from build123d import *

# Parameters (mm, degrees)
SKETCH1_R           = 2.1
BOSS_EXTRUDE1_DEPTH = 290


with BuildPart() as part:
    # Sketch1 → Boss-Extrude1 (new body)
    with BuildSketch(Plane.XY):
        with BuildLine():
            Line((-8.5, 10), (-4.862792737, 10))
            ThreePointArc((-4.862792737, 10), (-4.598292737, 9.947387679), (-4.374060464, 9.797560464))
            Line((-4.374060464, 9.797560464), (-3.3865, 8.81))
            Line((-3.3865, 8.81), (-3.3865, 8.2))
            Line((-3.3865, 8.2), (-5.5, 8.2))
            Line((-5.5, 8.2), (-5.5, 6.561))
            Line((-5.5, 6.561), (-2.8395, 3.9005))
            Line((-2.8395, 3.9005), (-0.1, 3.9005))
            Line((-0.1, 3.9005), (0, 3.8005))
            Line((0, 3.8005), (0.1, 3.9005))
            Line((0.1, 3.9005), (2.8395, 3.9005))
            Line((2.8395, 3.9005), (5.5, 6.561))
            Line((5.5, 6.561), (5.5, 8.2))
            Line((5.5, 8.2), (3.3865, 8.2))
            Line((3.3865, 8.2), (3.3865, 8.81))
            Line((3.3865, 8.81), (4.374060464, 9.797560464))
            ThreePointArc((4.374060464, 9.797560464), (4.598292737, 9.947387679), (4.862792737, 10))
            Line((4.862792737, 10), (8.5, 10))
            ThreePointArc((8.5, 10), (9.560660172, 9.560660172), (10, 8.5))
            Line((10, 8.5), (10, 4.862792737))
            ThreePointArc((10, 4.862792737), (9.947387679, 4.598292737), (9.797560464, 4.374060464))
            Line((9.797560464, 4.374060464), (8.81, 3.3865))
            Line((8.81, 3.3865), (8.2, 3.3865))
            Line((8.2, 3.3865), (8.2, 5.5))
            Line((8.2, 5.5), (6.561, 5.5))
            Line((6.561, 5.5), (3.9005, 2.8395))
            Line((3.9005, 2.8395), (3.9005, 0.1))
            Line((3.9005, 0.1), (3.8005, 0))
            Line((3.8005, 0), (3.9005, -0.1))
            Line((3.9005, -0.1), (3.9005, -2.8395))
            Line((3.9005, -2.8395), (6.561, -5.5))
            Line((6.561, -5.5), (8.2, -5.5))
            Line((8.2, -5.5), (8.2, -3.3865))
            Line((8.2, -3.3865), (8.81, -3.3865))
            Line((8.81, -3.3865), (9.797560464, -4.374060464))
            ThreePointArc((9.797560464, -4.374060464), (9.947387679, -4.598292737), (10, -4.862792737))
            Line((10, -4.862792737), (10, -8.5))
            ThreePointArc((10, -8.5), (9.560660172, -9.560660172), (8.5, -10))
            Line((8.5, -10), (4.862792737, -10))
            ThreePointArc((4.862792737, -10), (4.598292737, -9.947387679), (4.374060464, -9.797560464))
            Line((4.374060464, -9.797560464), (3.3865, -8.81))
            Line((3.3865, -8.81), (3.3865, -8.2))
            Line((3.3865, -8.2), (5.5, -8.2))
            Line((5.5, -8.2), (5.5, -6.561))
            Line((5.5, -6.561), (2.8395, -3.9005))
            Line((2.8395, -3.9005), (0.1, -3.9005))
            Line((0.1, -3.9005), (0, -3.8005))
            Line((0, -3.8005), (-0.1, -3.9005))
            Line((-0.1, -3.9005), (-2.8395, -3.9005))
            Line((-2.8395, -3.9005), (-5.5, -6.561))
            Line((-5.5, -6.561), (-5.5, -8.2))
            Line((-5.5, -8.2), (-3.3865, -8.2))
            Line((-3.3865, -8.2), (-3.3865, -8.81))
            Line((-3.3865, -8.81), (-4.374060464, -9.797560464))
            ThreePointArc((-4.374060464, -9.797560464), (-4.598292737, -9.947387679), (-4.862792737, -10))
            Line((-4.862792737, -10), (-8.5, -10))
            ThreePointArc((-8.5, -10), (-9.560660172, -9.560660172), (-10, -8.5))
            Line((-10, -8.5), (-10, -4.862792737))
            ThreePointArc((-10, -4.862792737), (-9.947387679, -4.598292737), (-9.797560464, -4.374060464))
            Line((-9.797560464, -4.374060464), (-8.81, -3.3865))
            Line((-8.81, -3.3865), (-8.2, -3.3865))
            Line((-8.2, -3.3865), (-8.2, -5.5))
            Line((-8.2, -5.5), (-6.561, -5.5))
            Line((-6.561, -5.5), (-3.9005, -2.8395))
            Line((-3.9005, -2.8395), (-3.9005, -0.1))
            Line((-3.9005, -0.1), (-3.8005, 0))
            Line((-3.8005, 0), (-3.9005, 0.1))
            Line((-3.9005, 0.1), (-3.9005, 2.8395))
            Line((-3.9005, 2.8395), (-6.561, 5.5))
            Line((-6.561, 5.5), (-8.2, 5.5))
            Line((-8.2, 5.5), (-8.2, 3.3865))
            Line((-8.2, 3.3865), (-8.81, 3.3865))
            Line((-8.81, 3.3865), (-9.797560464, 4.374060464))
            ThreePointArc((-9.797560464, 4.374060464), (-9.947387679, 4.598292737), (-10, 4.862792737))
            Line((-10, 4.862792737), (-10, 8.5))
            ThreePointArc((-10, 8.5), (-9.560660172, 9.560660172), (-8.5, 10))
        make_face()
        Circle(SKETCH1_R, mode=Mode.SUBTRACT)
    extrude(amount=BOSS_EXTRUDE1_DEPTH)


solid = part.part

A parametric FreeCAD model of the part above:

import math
import FreeCAD as App
import Part
import Sketcher
from FreeCAD import Vector

doc = App.newDocument("Part")
body = doc.addObject("PartDesign::Body", "Body")

# Sketch on XY plane
sketch1 = doc.addObject("Sketcher::SketchObject", "Sketch")
body.addObject(sketch1)
sketch1.AttachmentSupport = (doc.XY_Plane, [""])
sketch1.MapMode = "FlatFace"
sketch1.addGeometry([
    Part.LineSegment(Vector(-4.86, 10, 0), Vector(-8.5, 10, 0)),  # 0
    Part.ArcOfCircle(Part.Circle(Vector(-8.5, 8.5, 0), Vector(0, 0, 1), 1.5), math.radians(90), math.radians(180)),  # 1
    Part.LineSegment(Vector(-10, 8.5, 0), Vector(-10, 4.86, 0)),  # 2
    Part.ArcOfCircle(Part.Circle(Vector(-9.31, 4.86, 0), Vector(0, 0, 1), 0.69), math.radians(180), math.radians(225)),  # 3
    Part.LineSegment(Vector(-9.8, 4.37, 0), Vector(-8.81, 3.39, 0)),  # 4
    Part.LineSegment(Vector(-8.81, 3.39, 0), Vector(-8.2, 3.39, 0)),  # 5
    Part.LineSegment(Vector(-8.2, 3.39, 0), Vector(-8.2, 5.5, 0)),  # 6
    Part.LineSegment(Vector(-8.2, 5.5, 0), Vector(-6.56, 5.5, 0)),  # 7
    Part.LineSegment(Vector(-6.56, 5.5, 0), Vector(-3.9, 2.84, 0)),  # 8
    Part.LineSegment(Vector(-3.9, 2.84, 0), Vector(-3.9, 0.1, 0)),  # 9
    Part.LineSegment(Vector(-3.9, 0.1, 0), Vector(-3.8, 0, 0)),  # 10
    Part.LineSegment(Vector(-3.8, 0, 0), Vector(-3.9, -0.1, 0)),  # 11
    Part.LineSegment(Vector(-3.9, -0.1, 0), Vector(-3.9, -2.84, 0)),  # 12
    Part.LineSegment(Vector(-3.9, -2.84, 0), Vector(-6.56, -5.5, 0)),  # 13
    Part.LineSegment(Vector(-6.56, -5.5, 0), Vector(-8.2, -5.5, 0)),  # 14
    Part.LineSegment(Vector(-8.2, -5.5, 0), Vector(-8.2, -3.39, 0)),  # 15
    Part.LineSegment(Vector(-8.2, -3.39, 0), Vector(-8.81, -3.39, 0)),  # 16
    Part.LineSegment(Vector(-8.81, -3.39, 0), Vector(-9.8, -4.37, 0)),  # 17
    Part.ArcOfCircle(Part.Circle(Vector(-9.31, -4.86, 0), Vector(0, 0, 1), 0.69), math.radians(135), math.radians(180)),  # 18
    Part.LineSegment(Vector(-10, -4.86, 0), Vector(-10, -8.5, 0)),  # 19
    Part.ArcOfCircle(Part.Circle(Vector(-8.5, -8.5, 0), Vector(0, 0, 1), 1.5), math.radians(180), math.radians(270)),  # 20
    Part.LineSegment(Vector(-8.5, -10, 0), Vector(-4.86, -10, 0)),  # 21
    Part.ArcOfCircle(Part.Circle(Vector(-4.86, -9.31, 0), Vector(0, 0, 1), 0.69), math.radians(-90), math.radians(-45)),  # 22
    Part.LineSegment(Vector(-4.37, -9.8, 0), Vector(-3.39, -8.81, 0)),  # 23
    Part.LineSegment(Vector(-3.39, -8.81, 0), Vector(-3.39, -8.2, 0)),  # 24
    Part.LineSegment(Vector(-3.39, -8.2, 0), Vector(-5.5, -8.2, 0)),  # 25
    Part.LineSegment(Vector(-5.5, -8.2, 0), Vector(-5.5, -6.56, 0)),  # 26
    Part.LineSegment(Vector(-5.5, -6.56, 0), Vector(-2.84, -3.9, 0)),  # 27
    Part.LineSegment(Vector(-2.84, -3.9, 0), Vector(-0.1, -3.9, 0)),  # 28
    Part.LineSegment(Vector(-0.1, -3.9, 0), Vector(0, -3.8, 0)),  # 29
    Part.LineSegment(Vector(0, -3.8, 0), Vector(0.1, -3.9, 0)),  # 30
    Part.LineSegment(Vector(0.1, -3.9, 0), Vector(2.84, -3.9, 0)),  # 31
    Part.LineSegment(Vector(2.84, -3.9, 0), Vector(5.5, -6.56, 0)),  # 32
    Part.LineSegment(Vector(5.5, -6.56, 0), Vector(5.5, -8.2, 0)),  # 33
    Part.LineSegment(Vector(5.5, -8.2, 0), Vector(3.39, -8.2, 0)),  # 34
    Part.LineSegment(Vector(3.39, -8.2, 0), Vector(3.39, -8.81, 0)),  # 35
    Part.LineSegment(Vector(3.39, -8.81, 0), Vector(4.37, -9.8, 0)),  # 36
    Part.ArcOfCircle(Part.Circle(Vector(4.86, -9.31, 0), Vector(0, 0, 1), 0.69), math.radians(-135), math.radians(-90)),  # 37
    Part.LineSegment(Vector(4.86, -10, 0), Vector(8.5, -10, 0)),  # 38
    Part.ArcOfCircle(Part.Circle(Vector(8.5, -8.5, 0), Vector(0, 0, 1), 1.5), math.radians(-90), math.radians(0)),  # 39
    Part.LineSegment(Vector(10, -8.5, 0), Vector(10, -4.86, 0)),  # 40
    Part.ArcOfCircle(Part.Circle(Vector(9.31, -4.86, 0), Vector(0, 0, 1), 0.69), math.radians(0), math.radians(45)),  # 41
    Part.LineSegment(Vector(9.8, -4.37, 0), Vector(8.81, -3.39, 0)),  # 42
    Part.LineSegment(Vector(8.81, -3.39, 0), Vector(8.2, -3.39, 0)),  # 43
    Part.LineSegment(Vector(8.2, -3.39, 0), Vector(8.2, -5.5, 0)),  # 44
    Part.LineSegment(Vector(8.2, -5.5, 0), Vector(6.56, -5.5, 0)),  # 45
    Part.LineSegment(Vector(6.56, -5.5, 0), Vector(3.9, -2.84, 0)),  # 46
    Part.LineSegment(Vector(3.9, -2.84, 0), Vector(3.9, -0.1, 0)),  # 47
    Part.LineSegment(Vector(3.9, -0.1, 0), Vector(3.8, 0, 0)),  # 48
    Part.LineSegment(Vector(3.8, 0, 0), Vector(3.9, 0.1, 0)),  # 49
    Part.LineSegment(Vector(3.9, 0.1, 0), Vector(3.9, 2.84, 0)),  # 50
    Part.LineSegment(Vector(3.9, 2.84, 0), Vector(6.56, 5.5, 0)),  # 51
    Part.LineSegment(Vector(6.56, 5.5, 0), Vector(8.2, 5.5, 0)),  # 52
    Part.LineSegment(Vector(8.2, 5.5, 0), Vector(8.2, 3.39, 0)),  # 53
    Part.LineSegment(Vector(8.2, 3.39, 0), Vector(8.81, 3.39, 0)),  # 54
    Part.LineSegment(Vector(8.81, 3.39, 0), Vector(9.8, 4.37, 0)),  # 55
    Part.ArcOfCircle(Part.Circle(Vector(9.31, 4.86, 0), Vector(0, 0, 1), 0.69), math.radians(-45), math.radians(0)),  # 56
    Part.LineSegment(Vector(10, 4.86, 0), Vector(10, 8.5, 0)),  # 57
    Part.ArcOfCircle(Part.Circle(Vector(8.5, 8.5, 0), Vector(0, 0, 1), 1.5), math.radians(0), math.radians(90)),  # 58
    Part.LineSegment(Vector(8.5, 10, 0), Vector(4.86, 10, 0)),  # 59
    Part.ArcOfCircle(Part.Circle(Vector(4.86, 9.31, 0), Vector(0, 0, 1), 0.69), math.radians(90), math.radians(135)),  # 60
    Part.LineSegment(Vector(4.37, 9.8, 0), Vector(3.39, 8.81, 0)),  # 61
    Part.LineSegment(Vector(3.39, 8.81, 0), Vector(3.39, 8.2, 0)),  # 62
    Part.LineSegment(Vector(3.39, 8.2, 0), Vector(5.5, 8.2, 0)),  # 63
    Part.LineSegment(Vector(5.5, 8.2, 0), Vector(5.5, 6.56, 0)),  # 64
    Part.LineSegment(Vector(5.5, 6.56, 0), Vector(2.84, 3.9, 0)),  # 65
    Part.LineSegment(Vector(2.84, 3.9, 0), Vector(0.1, 3.9, 0)),  # 66
    Part.LineSegment(Vector(0.1, 3.9, 0), Vector(0, 3.8, 0)),  # 67
    Part.LineSegment(Vector(0, 3.8, 0), Vector(-0.1, 3.9, 0)),  # 68
    Part.LineSegment(Vector(-0.1, 3.9, 0), Vector(-2.84, 3.9, 0)),  # 69
    Part.LineSegment(Vector(-2.84, 3.9, 0), Vector(-5.5, 6.56, 0)),  # 70
    Part.LineSegment(Vector(-5.5, 6.56, 0), Vector(-5.5, 8.2, 0)),  # 71
    Part.LineSegment(Vector(-5.5, 8.2, 0), Vector(-3.39, 8.2, 0)),  # 72
    Part.LineSegment(Vector(-3.39, 8.2, 0), Vector(-3.39, 8.81, 0)),  # 73
    Part.LineSegment(Vector(-3.39, 8.81, 0), Vector(-4.37, 9.8, 0)),  # 74
    Part.ArcOfCircle(Part.Circle(Vector(-4.86, 9.31, 0), Vector(0, 0, 1), 0.69), math.radians(45), math.radians(90)),  # 75
    Part.Circle(Vector(0, 0, 0), Vector(0, 0, 1), 2.1),  # 76
], False)
sketch1.addConstraint([
    Sketcher.Constraint("Tangent", 0, 2, 1, 1),
    Sketcher.Constraint("Tangent", 1, 2, 2, 1),
    Sketcher.Constraint("Tangent", 2, 2, 3, 1),
    Sketcher.Constraint("Tangent", 3, 2, 4, 1),
    Sketcher.Constraint("Coincident", 4, 2, 5, 1),
    Sketcher.Constraint("Coincident", 5, 2, 6, 1),
    Sketcher.Constraint("Coincident", 6, 2, 7, 1),
    Sketcher.Constraint("Coincident", 7, 2, 8, 1),
    Sketcher.Constraint("Coincident", 8, 2, 9, 1),
    Sketcher.Constraint("Coincident", 9, 2, 10, 1),
    Sketcher.Constraint("Coincident", 10, 2, 11, 1),
    Sketcher.Constraint("Coincident", 11, 2, 12, 1),
    Sketcher.Constraint("Coincident", 12, 2, 13, 1),
    Sketcher.Constraint("Coincident", 13, 2, 14, 1),
    Sketcher.Constraint("Coincident", 14, 2, 15, 1),
    Sketcher.Constraint("Coincident", 15, 2, 16, 1),
    Sketcher.Constraint("Coincident", 16, 2, 17, 1),
    Sketcher.Constraint("Tangent", 17, 2, 18, 1),
    Sketcher.Constraint("Tangent", 18, 2, 19, 1),
    Sketcher.Constraint("Tangent", 19, 2, 20, 1),
    Sketcher.Constraint("Tangent", 20, 2, 21, 1),
    Sketcher.Constraint("Tangent", 21, 2, 22, 1),
    Sketcher.Constraint("Tangent", 22, 2, 23, 1),
    Sketcher.Constraint("Coincident", 23, 2, 24, 1),
    Sketcher.Constraint("Coincident", 24, 2, 25, 1),
    Sketcher.Constraint("Coincident", 25, 2, 26, 1),
    Sketcher.Constraint("Coincident", 26, 2, 27, 1),
    Sketcher.Constraint("Coincident", 27, 2, 28, 1),
    Sketcher.Constraint("Coincident", 28, 2, 29, 1),
    Sketcher.Constraint("Coincident", 29, 2, 30, 1),
    Sketcher.Constraint("Coincident", 30, 2, 31, 1),
    Sketcher.Constraint("Coincident", 31, 2, 32, 1),
    Sketcher.Constraint("Coincident", 32, 2, 33, 1),
    Sketcher.Constraint("Coincident", 33, 2, 34, 1),
    Sketcher.Constraint("Coincident", 34, 2, 35, 1),
    Sketcher.Constraint("Coincident", 35, 2, 36, 1),
    Sketcher.Constraint("Tangent", 36, 2, 37, 1),
    Sketcher.Constraint("Tangent", 37, 2, 38, 1),
    Sketcher.Constraint("Tangent", 38, 2, 39, 1),
    Sketcher.Constraint("Tangent", 39, 2, 40, 1),
    Sketcher.Constraint("Tangent", 40, 2, 41, 1),
    Sketcher.Constraint("Tangent", 41, 2, 42, 1),
    Sketcher.Constraint("Coincident", 42, 2, 43, 1),
    Sketcher.Constraint("Coincident", 43, 2, 44, 1),
    Sketcher.Constraint("Coincident", 44, 2, 45, 1),
    Sketcher.Constraint("Coincident", 45, 2, 46, 1),
    Sketcher.Constraint("Coincident", 46, 2, 47, 1),
    Sketcher.Constraint("Coincident", 47, 2, 48, 1),
    Sketcher.Constraint("Coincident", 48, 2, 49, 1),
    Sketcher.Constraint("Coincident", 49, 2, 50, 1),
    Sketcher.Constraint("Coincident", 50, 2, 51, 1),
    Sketcher.Constraint("Coincident", 51, 2, 52, 1),
    Sketcher.Constraint("Coincident", 52, 2, 53, 1),
    Sketcher.Constraint("Coincident", 53, 2, 54, 1),
    Sketcher.Constraint("Coincident", 54, 2, 55, 1),
    Sketcher.Constraint("Tangent", 55, 2, 56, 1),
    Sketcher.Constraint("Tangent", 56, 2, 57, 1),
    Sketcher.Constraint("Tangent", 57, 2, 58, 1),
    Sketcher.Constraint("Tangent", 58, 2, 59, 1),
    Sketcher.Constraint("Tangent", 59, 2, 60, 1),
    Sketcher.Constraint("Tangent", 60, 2, 61, 1),
    Sketcher.Constraint("Coincident", 61, 2, 62, 1),
    Sketcher.Constraint("Coincident", 62, 2, 63, 1),
    Sketcher.Constraint("Coincident", 63, 2, 64, 1),
    Sketcher.Constraint("Coincident", 64, 2, 65, 1),
    Sketcher.Constraint("Coincident", 65, 2, 66, 1),
    Sketcher.Constraint("Coincident", 66, 2, 67, 1),
    Sketcher.Constraint("Coincident", 67, 2, 68, 1),
    Sketcher.Constraint("Coincident", 68, 2, 69, 1),
    Sketcher.Constraint("Coincident", 69, 2, 70, 1),
    Sketcher.Constraint("Coincident", 70, 2, 71, 1),
    Sketcher.Constraint("Coincident", 71, 2, 72, 1),
    Sketcher.Constraint("Coincident", 72, 2, 73, 1),
    Sketcher.Constraint("Coincident", 73, 2, 74, 1),
    Sketcher.Constraint("Tangent", 74, 2, 75, 1),
    Sketcher.Constraint("Tangent", 75, 2, 0, 1),
    Sketcher.Constraint("Horizontal", 0),
    Sketcher.Constraint("Vertical", 2),
    Sketcher.Constraint("Horizontal", 5),
    Sketcher.Constraint("Vertical", 6),
    Sketcher.Constraint("Horizontal", 7),
    Sketcher.Constraint("Vertical", 9),
    Sketcher.Constraint("Vertical", 12),
    Sketcher.Constraint("Horizontal", 14),
    Sketcher.Constraint("Vertical", 15),
    Sketcher.Constraint("Horizontal", 16),
    Sketcher.Constraint("Vertical", 19),
    Sketcher.Constraint("Horizontal", 21),
    Sketcher.Constraint("Vertical", 24),
    Sketcher.Constraint("Horizontal", 25),
    Sketcher.Constraint("Vertical", 26),
    Sketcher.Constraint("Horizontal", 28),
    Sketcher.Constraint("Horizontal", 31),
    Sketcher.Constraint("Vertical", 33),
    Sketcher.Constraint("Horizontal", 34),
    Sketcher.Constraint("Vertical", 35),
    Sketcher.Constraint("Horizontal", 38),
    Sketcher.Constraint("Vertical", 40),
    Sketcher.Constraint("Horizontal", 43),
    Sketcher.Constraint("Vertical", 44),
    Sketcher.Constraint("Horizontal", 45),
    Sketcher.Constraint("Vertical", 47),
    Sketcher.Constraint("Vertical", 50),
    Sketcher.Constraint("Horizontal", 52),
    Sketcher.Constraint("Vertical", 53),
    Sketcher.Constraint("Horizontal", 54),
    Sketcher.Constraint("Vertical", 57),
    Sketcher.Constraint("Horizontal", 59),
    Sketcher.Constraint("Vertical", 62),
    Sketcher.Constraint("Horizontal", 63),
    Sketcher.Constraint("Vertical", 64),
    Sketcher.Constraint("Horizontal", 66),
    Sketcher.Constraint("Horizontal", 69),
    Sketcher.Constraint("Vertical", 71),
    Sketcher.Constraint("Horizontal", 72),
    Sketcher.Constraint("Vertical", 73),
    Sketcher.Constraint("Coincident", 76, 3, -1, 1),
    Sketcher.Constraint("Equal", 3, 18),
    Sketcher.Constraint("Equal", 1, 20),
    Sketcher.Constraint("Equal", 18, 22),
    Sketcher.Constraint("Equal", 22, 37),
    Sketcher.Constraint("Equal", 20, 39),
    Sketcher.Constraint("Equal", 37, 41),
    Sketcher.Constraint("Equal", 41, 56),
    Sketcher.Constraint("Equal", 39, 58),
    Sketcher.Constraint("Equal", 56, 60),
    Sketcher.Constraint("Equal", 60, 75),
    Sketcher.Constraint("Symmetric", 1, 3, 39, 3, -1, 1),
    Sketcher.Constraint("Symmetric", 18, 3, 56, 3, -1, 1),
    Sketcher.Constraint("Symmetric", 22, 3, 60, 3, -1, 1),
    Sketcher.Constraint("Symmetric", 3, 2, 41, 2, -1, 1),
    Sketcher.Constraint("Symmetric", 5, 2, 43, 2, -1, 1),
    Sketcher.Constraint("Symmetric", 7, 2, 45, 2, -1, 1),
    Sketcher.Constraint("Symmetric", 8, 2, 46, 2, -1, 1),
    Sketcher.Constraint("Symmetric", 10, 2, 48, 2, -1, 1),
    Sketcher.Constraint("Symmetric", 11, 2, 49, 2, -1, 1),
    Sketcher.Constraint("Symmetric", 13, 2, 51, 2, -1, 1),
    Sketcher.Constraint("Symmetric", 15, 2, 53, 2, -1, 1),
    Sketcher.Constraint("Symmetric", 23, 2, 61, 2, -1, 1),
    Sketcher.Constraint("Symmetric", 25, 2, 63, 2, -1, 1),
    Sketcher.Constraint("Symmetric", 27, 2, 65, 2, -1, 1),
    Sketcher.Constraint("Symmetric", 29, 2, 67, 2, -1, 1),
    Sketcher.Constraint("Symmetric", 30, 2, 68, 2, -1, 1),
    Sketcher.Constraint("Symmetric", 32, 2, 70, 2, -1, 1),
    Sketcher.Constraint("Symmetric", 34, 2, 72, 2, -1, 1),
    Sketcher.Constraint("Symmetric", 36, 2, 74, 2, -1, 1),
    Sketcher.Constraint("Symmetric", 22, 3, 37, 3, -2),
    Sketcher.Constraint("Symmetric", 18, 3, 41, 3, -2),
    Sketcher.Constraint("Symmetric", 28, 2, 30, 2, -2),
    Sketcher.Constraint("Symmetric", 26, 2, 32, 2, -2),
    Sketcher.Constraint("Symmetric", 24, 2, 34, 2, -2),
    Sketcher.Constraint("Symmetric", 16, 2, 42, 2, -2),
    Sketcher.Constraint("Symmetric", 14, 2, 44, 2, -2),
    Sketcher.Constraint("Symmetric", 12, 2, 46, 2, -2),
    Sketcher.Constraint("PointOnObject", 10, 2, -1),
    Sketcher.Constraint("PointOnObject", 29, 2, -2),
    Sketcher.Constraint("Parallel", 4, 8),
    Sketcher.Constraint("Parallel", 8, 10),
    Sketcher.Constraint("Perpendicular", 10, 11),
    Sketcher.Constraint("Parallel", 11, 13),
    Sketcher.Constraint("Parallel", 13, 17),
    Sketcher.Constraint("Parallel", 17, 23),
    Sketcher.Constraint("Parallel", 23, 27),
    Sketcher.Constraint("Parallel", 27, 29),
    Sketcher.Constraint("Parallel", 30, 32),
    Sketcher.Constraint("Parallel", 32, 36),
    Sketcher.Constraint("Parallel", 46, 48),
    Sketcher.Constraint("Parallel", 49, 51),
    Sketcher.Constraint("Parallel", 51, 55),
    Sketcher.Constraint("Parallel", 61, 65),
    Sketcher.Constraint("Parallel", 65, 67),
    Sketcher.Constraint("Parallel", 68, 70),
    Sketcher.Constraint("Equal", 59, 2),
    Sketcher.Constraint("Equal", 72, 6),
    Sketcher.Constraint("Equal", 69, 9),
    Sketcher.Constraint("Equal", 54, 24),
    Sketcher.Constraint("Equal", 52, 26),
    Sketcher.Constraint("Equal", 17, 23),
    Sketcher.Constraint("Equal", 13, 27),
    Sketcher.Constraint("Equal", 11, 29),
    Sketcher.Constraint("Diameter", 76, 4.2),
    Sketcher.Constraint("Radius", 1, 1.5),
    Sketcher.Constraint("DistanceY", -1, 1, 0, 2, 10.0),
    Sketcher.Constraint("DistanceX", 5, 1, 5, 2, 0.61),
    Sketcher.Constraint("DistanceX", 5, 2, -1, 1, 8.2),
    Sketcher.Constraint("DistanceY", -1, 1, 6, 2, 5.5),
    Sketcher.Constraint("DistanceY", -1, 1, 9, 2, 0.1),
    Sketcher.Constraint("DistanceX", 7, 1, 7, 2, 1.639),
    Sketcher.Constraint("Radius", 3, 0.691172),
    Sketcher.Constraint("DistanceX", 25, 2, 25, 1, 2.1135),
    Sketcher.Constraint("DistanceX", 28, 1, 28, 2, 2.7395),
])
pad1 = doc.addObject("PartDesign::Pad", "Pad")
body.addObject(pad1)
pad1.Profile = sketch1
pad1.Length = 290

doc.recompute()
